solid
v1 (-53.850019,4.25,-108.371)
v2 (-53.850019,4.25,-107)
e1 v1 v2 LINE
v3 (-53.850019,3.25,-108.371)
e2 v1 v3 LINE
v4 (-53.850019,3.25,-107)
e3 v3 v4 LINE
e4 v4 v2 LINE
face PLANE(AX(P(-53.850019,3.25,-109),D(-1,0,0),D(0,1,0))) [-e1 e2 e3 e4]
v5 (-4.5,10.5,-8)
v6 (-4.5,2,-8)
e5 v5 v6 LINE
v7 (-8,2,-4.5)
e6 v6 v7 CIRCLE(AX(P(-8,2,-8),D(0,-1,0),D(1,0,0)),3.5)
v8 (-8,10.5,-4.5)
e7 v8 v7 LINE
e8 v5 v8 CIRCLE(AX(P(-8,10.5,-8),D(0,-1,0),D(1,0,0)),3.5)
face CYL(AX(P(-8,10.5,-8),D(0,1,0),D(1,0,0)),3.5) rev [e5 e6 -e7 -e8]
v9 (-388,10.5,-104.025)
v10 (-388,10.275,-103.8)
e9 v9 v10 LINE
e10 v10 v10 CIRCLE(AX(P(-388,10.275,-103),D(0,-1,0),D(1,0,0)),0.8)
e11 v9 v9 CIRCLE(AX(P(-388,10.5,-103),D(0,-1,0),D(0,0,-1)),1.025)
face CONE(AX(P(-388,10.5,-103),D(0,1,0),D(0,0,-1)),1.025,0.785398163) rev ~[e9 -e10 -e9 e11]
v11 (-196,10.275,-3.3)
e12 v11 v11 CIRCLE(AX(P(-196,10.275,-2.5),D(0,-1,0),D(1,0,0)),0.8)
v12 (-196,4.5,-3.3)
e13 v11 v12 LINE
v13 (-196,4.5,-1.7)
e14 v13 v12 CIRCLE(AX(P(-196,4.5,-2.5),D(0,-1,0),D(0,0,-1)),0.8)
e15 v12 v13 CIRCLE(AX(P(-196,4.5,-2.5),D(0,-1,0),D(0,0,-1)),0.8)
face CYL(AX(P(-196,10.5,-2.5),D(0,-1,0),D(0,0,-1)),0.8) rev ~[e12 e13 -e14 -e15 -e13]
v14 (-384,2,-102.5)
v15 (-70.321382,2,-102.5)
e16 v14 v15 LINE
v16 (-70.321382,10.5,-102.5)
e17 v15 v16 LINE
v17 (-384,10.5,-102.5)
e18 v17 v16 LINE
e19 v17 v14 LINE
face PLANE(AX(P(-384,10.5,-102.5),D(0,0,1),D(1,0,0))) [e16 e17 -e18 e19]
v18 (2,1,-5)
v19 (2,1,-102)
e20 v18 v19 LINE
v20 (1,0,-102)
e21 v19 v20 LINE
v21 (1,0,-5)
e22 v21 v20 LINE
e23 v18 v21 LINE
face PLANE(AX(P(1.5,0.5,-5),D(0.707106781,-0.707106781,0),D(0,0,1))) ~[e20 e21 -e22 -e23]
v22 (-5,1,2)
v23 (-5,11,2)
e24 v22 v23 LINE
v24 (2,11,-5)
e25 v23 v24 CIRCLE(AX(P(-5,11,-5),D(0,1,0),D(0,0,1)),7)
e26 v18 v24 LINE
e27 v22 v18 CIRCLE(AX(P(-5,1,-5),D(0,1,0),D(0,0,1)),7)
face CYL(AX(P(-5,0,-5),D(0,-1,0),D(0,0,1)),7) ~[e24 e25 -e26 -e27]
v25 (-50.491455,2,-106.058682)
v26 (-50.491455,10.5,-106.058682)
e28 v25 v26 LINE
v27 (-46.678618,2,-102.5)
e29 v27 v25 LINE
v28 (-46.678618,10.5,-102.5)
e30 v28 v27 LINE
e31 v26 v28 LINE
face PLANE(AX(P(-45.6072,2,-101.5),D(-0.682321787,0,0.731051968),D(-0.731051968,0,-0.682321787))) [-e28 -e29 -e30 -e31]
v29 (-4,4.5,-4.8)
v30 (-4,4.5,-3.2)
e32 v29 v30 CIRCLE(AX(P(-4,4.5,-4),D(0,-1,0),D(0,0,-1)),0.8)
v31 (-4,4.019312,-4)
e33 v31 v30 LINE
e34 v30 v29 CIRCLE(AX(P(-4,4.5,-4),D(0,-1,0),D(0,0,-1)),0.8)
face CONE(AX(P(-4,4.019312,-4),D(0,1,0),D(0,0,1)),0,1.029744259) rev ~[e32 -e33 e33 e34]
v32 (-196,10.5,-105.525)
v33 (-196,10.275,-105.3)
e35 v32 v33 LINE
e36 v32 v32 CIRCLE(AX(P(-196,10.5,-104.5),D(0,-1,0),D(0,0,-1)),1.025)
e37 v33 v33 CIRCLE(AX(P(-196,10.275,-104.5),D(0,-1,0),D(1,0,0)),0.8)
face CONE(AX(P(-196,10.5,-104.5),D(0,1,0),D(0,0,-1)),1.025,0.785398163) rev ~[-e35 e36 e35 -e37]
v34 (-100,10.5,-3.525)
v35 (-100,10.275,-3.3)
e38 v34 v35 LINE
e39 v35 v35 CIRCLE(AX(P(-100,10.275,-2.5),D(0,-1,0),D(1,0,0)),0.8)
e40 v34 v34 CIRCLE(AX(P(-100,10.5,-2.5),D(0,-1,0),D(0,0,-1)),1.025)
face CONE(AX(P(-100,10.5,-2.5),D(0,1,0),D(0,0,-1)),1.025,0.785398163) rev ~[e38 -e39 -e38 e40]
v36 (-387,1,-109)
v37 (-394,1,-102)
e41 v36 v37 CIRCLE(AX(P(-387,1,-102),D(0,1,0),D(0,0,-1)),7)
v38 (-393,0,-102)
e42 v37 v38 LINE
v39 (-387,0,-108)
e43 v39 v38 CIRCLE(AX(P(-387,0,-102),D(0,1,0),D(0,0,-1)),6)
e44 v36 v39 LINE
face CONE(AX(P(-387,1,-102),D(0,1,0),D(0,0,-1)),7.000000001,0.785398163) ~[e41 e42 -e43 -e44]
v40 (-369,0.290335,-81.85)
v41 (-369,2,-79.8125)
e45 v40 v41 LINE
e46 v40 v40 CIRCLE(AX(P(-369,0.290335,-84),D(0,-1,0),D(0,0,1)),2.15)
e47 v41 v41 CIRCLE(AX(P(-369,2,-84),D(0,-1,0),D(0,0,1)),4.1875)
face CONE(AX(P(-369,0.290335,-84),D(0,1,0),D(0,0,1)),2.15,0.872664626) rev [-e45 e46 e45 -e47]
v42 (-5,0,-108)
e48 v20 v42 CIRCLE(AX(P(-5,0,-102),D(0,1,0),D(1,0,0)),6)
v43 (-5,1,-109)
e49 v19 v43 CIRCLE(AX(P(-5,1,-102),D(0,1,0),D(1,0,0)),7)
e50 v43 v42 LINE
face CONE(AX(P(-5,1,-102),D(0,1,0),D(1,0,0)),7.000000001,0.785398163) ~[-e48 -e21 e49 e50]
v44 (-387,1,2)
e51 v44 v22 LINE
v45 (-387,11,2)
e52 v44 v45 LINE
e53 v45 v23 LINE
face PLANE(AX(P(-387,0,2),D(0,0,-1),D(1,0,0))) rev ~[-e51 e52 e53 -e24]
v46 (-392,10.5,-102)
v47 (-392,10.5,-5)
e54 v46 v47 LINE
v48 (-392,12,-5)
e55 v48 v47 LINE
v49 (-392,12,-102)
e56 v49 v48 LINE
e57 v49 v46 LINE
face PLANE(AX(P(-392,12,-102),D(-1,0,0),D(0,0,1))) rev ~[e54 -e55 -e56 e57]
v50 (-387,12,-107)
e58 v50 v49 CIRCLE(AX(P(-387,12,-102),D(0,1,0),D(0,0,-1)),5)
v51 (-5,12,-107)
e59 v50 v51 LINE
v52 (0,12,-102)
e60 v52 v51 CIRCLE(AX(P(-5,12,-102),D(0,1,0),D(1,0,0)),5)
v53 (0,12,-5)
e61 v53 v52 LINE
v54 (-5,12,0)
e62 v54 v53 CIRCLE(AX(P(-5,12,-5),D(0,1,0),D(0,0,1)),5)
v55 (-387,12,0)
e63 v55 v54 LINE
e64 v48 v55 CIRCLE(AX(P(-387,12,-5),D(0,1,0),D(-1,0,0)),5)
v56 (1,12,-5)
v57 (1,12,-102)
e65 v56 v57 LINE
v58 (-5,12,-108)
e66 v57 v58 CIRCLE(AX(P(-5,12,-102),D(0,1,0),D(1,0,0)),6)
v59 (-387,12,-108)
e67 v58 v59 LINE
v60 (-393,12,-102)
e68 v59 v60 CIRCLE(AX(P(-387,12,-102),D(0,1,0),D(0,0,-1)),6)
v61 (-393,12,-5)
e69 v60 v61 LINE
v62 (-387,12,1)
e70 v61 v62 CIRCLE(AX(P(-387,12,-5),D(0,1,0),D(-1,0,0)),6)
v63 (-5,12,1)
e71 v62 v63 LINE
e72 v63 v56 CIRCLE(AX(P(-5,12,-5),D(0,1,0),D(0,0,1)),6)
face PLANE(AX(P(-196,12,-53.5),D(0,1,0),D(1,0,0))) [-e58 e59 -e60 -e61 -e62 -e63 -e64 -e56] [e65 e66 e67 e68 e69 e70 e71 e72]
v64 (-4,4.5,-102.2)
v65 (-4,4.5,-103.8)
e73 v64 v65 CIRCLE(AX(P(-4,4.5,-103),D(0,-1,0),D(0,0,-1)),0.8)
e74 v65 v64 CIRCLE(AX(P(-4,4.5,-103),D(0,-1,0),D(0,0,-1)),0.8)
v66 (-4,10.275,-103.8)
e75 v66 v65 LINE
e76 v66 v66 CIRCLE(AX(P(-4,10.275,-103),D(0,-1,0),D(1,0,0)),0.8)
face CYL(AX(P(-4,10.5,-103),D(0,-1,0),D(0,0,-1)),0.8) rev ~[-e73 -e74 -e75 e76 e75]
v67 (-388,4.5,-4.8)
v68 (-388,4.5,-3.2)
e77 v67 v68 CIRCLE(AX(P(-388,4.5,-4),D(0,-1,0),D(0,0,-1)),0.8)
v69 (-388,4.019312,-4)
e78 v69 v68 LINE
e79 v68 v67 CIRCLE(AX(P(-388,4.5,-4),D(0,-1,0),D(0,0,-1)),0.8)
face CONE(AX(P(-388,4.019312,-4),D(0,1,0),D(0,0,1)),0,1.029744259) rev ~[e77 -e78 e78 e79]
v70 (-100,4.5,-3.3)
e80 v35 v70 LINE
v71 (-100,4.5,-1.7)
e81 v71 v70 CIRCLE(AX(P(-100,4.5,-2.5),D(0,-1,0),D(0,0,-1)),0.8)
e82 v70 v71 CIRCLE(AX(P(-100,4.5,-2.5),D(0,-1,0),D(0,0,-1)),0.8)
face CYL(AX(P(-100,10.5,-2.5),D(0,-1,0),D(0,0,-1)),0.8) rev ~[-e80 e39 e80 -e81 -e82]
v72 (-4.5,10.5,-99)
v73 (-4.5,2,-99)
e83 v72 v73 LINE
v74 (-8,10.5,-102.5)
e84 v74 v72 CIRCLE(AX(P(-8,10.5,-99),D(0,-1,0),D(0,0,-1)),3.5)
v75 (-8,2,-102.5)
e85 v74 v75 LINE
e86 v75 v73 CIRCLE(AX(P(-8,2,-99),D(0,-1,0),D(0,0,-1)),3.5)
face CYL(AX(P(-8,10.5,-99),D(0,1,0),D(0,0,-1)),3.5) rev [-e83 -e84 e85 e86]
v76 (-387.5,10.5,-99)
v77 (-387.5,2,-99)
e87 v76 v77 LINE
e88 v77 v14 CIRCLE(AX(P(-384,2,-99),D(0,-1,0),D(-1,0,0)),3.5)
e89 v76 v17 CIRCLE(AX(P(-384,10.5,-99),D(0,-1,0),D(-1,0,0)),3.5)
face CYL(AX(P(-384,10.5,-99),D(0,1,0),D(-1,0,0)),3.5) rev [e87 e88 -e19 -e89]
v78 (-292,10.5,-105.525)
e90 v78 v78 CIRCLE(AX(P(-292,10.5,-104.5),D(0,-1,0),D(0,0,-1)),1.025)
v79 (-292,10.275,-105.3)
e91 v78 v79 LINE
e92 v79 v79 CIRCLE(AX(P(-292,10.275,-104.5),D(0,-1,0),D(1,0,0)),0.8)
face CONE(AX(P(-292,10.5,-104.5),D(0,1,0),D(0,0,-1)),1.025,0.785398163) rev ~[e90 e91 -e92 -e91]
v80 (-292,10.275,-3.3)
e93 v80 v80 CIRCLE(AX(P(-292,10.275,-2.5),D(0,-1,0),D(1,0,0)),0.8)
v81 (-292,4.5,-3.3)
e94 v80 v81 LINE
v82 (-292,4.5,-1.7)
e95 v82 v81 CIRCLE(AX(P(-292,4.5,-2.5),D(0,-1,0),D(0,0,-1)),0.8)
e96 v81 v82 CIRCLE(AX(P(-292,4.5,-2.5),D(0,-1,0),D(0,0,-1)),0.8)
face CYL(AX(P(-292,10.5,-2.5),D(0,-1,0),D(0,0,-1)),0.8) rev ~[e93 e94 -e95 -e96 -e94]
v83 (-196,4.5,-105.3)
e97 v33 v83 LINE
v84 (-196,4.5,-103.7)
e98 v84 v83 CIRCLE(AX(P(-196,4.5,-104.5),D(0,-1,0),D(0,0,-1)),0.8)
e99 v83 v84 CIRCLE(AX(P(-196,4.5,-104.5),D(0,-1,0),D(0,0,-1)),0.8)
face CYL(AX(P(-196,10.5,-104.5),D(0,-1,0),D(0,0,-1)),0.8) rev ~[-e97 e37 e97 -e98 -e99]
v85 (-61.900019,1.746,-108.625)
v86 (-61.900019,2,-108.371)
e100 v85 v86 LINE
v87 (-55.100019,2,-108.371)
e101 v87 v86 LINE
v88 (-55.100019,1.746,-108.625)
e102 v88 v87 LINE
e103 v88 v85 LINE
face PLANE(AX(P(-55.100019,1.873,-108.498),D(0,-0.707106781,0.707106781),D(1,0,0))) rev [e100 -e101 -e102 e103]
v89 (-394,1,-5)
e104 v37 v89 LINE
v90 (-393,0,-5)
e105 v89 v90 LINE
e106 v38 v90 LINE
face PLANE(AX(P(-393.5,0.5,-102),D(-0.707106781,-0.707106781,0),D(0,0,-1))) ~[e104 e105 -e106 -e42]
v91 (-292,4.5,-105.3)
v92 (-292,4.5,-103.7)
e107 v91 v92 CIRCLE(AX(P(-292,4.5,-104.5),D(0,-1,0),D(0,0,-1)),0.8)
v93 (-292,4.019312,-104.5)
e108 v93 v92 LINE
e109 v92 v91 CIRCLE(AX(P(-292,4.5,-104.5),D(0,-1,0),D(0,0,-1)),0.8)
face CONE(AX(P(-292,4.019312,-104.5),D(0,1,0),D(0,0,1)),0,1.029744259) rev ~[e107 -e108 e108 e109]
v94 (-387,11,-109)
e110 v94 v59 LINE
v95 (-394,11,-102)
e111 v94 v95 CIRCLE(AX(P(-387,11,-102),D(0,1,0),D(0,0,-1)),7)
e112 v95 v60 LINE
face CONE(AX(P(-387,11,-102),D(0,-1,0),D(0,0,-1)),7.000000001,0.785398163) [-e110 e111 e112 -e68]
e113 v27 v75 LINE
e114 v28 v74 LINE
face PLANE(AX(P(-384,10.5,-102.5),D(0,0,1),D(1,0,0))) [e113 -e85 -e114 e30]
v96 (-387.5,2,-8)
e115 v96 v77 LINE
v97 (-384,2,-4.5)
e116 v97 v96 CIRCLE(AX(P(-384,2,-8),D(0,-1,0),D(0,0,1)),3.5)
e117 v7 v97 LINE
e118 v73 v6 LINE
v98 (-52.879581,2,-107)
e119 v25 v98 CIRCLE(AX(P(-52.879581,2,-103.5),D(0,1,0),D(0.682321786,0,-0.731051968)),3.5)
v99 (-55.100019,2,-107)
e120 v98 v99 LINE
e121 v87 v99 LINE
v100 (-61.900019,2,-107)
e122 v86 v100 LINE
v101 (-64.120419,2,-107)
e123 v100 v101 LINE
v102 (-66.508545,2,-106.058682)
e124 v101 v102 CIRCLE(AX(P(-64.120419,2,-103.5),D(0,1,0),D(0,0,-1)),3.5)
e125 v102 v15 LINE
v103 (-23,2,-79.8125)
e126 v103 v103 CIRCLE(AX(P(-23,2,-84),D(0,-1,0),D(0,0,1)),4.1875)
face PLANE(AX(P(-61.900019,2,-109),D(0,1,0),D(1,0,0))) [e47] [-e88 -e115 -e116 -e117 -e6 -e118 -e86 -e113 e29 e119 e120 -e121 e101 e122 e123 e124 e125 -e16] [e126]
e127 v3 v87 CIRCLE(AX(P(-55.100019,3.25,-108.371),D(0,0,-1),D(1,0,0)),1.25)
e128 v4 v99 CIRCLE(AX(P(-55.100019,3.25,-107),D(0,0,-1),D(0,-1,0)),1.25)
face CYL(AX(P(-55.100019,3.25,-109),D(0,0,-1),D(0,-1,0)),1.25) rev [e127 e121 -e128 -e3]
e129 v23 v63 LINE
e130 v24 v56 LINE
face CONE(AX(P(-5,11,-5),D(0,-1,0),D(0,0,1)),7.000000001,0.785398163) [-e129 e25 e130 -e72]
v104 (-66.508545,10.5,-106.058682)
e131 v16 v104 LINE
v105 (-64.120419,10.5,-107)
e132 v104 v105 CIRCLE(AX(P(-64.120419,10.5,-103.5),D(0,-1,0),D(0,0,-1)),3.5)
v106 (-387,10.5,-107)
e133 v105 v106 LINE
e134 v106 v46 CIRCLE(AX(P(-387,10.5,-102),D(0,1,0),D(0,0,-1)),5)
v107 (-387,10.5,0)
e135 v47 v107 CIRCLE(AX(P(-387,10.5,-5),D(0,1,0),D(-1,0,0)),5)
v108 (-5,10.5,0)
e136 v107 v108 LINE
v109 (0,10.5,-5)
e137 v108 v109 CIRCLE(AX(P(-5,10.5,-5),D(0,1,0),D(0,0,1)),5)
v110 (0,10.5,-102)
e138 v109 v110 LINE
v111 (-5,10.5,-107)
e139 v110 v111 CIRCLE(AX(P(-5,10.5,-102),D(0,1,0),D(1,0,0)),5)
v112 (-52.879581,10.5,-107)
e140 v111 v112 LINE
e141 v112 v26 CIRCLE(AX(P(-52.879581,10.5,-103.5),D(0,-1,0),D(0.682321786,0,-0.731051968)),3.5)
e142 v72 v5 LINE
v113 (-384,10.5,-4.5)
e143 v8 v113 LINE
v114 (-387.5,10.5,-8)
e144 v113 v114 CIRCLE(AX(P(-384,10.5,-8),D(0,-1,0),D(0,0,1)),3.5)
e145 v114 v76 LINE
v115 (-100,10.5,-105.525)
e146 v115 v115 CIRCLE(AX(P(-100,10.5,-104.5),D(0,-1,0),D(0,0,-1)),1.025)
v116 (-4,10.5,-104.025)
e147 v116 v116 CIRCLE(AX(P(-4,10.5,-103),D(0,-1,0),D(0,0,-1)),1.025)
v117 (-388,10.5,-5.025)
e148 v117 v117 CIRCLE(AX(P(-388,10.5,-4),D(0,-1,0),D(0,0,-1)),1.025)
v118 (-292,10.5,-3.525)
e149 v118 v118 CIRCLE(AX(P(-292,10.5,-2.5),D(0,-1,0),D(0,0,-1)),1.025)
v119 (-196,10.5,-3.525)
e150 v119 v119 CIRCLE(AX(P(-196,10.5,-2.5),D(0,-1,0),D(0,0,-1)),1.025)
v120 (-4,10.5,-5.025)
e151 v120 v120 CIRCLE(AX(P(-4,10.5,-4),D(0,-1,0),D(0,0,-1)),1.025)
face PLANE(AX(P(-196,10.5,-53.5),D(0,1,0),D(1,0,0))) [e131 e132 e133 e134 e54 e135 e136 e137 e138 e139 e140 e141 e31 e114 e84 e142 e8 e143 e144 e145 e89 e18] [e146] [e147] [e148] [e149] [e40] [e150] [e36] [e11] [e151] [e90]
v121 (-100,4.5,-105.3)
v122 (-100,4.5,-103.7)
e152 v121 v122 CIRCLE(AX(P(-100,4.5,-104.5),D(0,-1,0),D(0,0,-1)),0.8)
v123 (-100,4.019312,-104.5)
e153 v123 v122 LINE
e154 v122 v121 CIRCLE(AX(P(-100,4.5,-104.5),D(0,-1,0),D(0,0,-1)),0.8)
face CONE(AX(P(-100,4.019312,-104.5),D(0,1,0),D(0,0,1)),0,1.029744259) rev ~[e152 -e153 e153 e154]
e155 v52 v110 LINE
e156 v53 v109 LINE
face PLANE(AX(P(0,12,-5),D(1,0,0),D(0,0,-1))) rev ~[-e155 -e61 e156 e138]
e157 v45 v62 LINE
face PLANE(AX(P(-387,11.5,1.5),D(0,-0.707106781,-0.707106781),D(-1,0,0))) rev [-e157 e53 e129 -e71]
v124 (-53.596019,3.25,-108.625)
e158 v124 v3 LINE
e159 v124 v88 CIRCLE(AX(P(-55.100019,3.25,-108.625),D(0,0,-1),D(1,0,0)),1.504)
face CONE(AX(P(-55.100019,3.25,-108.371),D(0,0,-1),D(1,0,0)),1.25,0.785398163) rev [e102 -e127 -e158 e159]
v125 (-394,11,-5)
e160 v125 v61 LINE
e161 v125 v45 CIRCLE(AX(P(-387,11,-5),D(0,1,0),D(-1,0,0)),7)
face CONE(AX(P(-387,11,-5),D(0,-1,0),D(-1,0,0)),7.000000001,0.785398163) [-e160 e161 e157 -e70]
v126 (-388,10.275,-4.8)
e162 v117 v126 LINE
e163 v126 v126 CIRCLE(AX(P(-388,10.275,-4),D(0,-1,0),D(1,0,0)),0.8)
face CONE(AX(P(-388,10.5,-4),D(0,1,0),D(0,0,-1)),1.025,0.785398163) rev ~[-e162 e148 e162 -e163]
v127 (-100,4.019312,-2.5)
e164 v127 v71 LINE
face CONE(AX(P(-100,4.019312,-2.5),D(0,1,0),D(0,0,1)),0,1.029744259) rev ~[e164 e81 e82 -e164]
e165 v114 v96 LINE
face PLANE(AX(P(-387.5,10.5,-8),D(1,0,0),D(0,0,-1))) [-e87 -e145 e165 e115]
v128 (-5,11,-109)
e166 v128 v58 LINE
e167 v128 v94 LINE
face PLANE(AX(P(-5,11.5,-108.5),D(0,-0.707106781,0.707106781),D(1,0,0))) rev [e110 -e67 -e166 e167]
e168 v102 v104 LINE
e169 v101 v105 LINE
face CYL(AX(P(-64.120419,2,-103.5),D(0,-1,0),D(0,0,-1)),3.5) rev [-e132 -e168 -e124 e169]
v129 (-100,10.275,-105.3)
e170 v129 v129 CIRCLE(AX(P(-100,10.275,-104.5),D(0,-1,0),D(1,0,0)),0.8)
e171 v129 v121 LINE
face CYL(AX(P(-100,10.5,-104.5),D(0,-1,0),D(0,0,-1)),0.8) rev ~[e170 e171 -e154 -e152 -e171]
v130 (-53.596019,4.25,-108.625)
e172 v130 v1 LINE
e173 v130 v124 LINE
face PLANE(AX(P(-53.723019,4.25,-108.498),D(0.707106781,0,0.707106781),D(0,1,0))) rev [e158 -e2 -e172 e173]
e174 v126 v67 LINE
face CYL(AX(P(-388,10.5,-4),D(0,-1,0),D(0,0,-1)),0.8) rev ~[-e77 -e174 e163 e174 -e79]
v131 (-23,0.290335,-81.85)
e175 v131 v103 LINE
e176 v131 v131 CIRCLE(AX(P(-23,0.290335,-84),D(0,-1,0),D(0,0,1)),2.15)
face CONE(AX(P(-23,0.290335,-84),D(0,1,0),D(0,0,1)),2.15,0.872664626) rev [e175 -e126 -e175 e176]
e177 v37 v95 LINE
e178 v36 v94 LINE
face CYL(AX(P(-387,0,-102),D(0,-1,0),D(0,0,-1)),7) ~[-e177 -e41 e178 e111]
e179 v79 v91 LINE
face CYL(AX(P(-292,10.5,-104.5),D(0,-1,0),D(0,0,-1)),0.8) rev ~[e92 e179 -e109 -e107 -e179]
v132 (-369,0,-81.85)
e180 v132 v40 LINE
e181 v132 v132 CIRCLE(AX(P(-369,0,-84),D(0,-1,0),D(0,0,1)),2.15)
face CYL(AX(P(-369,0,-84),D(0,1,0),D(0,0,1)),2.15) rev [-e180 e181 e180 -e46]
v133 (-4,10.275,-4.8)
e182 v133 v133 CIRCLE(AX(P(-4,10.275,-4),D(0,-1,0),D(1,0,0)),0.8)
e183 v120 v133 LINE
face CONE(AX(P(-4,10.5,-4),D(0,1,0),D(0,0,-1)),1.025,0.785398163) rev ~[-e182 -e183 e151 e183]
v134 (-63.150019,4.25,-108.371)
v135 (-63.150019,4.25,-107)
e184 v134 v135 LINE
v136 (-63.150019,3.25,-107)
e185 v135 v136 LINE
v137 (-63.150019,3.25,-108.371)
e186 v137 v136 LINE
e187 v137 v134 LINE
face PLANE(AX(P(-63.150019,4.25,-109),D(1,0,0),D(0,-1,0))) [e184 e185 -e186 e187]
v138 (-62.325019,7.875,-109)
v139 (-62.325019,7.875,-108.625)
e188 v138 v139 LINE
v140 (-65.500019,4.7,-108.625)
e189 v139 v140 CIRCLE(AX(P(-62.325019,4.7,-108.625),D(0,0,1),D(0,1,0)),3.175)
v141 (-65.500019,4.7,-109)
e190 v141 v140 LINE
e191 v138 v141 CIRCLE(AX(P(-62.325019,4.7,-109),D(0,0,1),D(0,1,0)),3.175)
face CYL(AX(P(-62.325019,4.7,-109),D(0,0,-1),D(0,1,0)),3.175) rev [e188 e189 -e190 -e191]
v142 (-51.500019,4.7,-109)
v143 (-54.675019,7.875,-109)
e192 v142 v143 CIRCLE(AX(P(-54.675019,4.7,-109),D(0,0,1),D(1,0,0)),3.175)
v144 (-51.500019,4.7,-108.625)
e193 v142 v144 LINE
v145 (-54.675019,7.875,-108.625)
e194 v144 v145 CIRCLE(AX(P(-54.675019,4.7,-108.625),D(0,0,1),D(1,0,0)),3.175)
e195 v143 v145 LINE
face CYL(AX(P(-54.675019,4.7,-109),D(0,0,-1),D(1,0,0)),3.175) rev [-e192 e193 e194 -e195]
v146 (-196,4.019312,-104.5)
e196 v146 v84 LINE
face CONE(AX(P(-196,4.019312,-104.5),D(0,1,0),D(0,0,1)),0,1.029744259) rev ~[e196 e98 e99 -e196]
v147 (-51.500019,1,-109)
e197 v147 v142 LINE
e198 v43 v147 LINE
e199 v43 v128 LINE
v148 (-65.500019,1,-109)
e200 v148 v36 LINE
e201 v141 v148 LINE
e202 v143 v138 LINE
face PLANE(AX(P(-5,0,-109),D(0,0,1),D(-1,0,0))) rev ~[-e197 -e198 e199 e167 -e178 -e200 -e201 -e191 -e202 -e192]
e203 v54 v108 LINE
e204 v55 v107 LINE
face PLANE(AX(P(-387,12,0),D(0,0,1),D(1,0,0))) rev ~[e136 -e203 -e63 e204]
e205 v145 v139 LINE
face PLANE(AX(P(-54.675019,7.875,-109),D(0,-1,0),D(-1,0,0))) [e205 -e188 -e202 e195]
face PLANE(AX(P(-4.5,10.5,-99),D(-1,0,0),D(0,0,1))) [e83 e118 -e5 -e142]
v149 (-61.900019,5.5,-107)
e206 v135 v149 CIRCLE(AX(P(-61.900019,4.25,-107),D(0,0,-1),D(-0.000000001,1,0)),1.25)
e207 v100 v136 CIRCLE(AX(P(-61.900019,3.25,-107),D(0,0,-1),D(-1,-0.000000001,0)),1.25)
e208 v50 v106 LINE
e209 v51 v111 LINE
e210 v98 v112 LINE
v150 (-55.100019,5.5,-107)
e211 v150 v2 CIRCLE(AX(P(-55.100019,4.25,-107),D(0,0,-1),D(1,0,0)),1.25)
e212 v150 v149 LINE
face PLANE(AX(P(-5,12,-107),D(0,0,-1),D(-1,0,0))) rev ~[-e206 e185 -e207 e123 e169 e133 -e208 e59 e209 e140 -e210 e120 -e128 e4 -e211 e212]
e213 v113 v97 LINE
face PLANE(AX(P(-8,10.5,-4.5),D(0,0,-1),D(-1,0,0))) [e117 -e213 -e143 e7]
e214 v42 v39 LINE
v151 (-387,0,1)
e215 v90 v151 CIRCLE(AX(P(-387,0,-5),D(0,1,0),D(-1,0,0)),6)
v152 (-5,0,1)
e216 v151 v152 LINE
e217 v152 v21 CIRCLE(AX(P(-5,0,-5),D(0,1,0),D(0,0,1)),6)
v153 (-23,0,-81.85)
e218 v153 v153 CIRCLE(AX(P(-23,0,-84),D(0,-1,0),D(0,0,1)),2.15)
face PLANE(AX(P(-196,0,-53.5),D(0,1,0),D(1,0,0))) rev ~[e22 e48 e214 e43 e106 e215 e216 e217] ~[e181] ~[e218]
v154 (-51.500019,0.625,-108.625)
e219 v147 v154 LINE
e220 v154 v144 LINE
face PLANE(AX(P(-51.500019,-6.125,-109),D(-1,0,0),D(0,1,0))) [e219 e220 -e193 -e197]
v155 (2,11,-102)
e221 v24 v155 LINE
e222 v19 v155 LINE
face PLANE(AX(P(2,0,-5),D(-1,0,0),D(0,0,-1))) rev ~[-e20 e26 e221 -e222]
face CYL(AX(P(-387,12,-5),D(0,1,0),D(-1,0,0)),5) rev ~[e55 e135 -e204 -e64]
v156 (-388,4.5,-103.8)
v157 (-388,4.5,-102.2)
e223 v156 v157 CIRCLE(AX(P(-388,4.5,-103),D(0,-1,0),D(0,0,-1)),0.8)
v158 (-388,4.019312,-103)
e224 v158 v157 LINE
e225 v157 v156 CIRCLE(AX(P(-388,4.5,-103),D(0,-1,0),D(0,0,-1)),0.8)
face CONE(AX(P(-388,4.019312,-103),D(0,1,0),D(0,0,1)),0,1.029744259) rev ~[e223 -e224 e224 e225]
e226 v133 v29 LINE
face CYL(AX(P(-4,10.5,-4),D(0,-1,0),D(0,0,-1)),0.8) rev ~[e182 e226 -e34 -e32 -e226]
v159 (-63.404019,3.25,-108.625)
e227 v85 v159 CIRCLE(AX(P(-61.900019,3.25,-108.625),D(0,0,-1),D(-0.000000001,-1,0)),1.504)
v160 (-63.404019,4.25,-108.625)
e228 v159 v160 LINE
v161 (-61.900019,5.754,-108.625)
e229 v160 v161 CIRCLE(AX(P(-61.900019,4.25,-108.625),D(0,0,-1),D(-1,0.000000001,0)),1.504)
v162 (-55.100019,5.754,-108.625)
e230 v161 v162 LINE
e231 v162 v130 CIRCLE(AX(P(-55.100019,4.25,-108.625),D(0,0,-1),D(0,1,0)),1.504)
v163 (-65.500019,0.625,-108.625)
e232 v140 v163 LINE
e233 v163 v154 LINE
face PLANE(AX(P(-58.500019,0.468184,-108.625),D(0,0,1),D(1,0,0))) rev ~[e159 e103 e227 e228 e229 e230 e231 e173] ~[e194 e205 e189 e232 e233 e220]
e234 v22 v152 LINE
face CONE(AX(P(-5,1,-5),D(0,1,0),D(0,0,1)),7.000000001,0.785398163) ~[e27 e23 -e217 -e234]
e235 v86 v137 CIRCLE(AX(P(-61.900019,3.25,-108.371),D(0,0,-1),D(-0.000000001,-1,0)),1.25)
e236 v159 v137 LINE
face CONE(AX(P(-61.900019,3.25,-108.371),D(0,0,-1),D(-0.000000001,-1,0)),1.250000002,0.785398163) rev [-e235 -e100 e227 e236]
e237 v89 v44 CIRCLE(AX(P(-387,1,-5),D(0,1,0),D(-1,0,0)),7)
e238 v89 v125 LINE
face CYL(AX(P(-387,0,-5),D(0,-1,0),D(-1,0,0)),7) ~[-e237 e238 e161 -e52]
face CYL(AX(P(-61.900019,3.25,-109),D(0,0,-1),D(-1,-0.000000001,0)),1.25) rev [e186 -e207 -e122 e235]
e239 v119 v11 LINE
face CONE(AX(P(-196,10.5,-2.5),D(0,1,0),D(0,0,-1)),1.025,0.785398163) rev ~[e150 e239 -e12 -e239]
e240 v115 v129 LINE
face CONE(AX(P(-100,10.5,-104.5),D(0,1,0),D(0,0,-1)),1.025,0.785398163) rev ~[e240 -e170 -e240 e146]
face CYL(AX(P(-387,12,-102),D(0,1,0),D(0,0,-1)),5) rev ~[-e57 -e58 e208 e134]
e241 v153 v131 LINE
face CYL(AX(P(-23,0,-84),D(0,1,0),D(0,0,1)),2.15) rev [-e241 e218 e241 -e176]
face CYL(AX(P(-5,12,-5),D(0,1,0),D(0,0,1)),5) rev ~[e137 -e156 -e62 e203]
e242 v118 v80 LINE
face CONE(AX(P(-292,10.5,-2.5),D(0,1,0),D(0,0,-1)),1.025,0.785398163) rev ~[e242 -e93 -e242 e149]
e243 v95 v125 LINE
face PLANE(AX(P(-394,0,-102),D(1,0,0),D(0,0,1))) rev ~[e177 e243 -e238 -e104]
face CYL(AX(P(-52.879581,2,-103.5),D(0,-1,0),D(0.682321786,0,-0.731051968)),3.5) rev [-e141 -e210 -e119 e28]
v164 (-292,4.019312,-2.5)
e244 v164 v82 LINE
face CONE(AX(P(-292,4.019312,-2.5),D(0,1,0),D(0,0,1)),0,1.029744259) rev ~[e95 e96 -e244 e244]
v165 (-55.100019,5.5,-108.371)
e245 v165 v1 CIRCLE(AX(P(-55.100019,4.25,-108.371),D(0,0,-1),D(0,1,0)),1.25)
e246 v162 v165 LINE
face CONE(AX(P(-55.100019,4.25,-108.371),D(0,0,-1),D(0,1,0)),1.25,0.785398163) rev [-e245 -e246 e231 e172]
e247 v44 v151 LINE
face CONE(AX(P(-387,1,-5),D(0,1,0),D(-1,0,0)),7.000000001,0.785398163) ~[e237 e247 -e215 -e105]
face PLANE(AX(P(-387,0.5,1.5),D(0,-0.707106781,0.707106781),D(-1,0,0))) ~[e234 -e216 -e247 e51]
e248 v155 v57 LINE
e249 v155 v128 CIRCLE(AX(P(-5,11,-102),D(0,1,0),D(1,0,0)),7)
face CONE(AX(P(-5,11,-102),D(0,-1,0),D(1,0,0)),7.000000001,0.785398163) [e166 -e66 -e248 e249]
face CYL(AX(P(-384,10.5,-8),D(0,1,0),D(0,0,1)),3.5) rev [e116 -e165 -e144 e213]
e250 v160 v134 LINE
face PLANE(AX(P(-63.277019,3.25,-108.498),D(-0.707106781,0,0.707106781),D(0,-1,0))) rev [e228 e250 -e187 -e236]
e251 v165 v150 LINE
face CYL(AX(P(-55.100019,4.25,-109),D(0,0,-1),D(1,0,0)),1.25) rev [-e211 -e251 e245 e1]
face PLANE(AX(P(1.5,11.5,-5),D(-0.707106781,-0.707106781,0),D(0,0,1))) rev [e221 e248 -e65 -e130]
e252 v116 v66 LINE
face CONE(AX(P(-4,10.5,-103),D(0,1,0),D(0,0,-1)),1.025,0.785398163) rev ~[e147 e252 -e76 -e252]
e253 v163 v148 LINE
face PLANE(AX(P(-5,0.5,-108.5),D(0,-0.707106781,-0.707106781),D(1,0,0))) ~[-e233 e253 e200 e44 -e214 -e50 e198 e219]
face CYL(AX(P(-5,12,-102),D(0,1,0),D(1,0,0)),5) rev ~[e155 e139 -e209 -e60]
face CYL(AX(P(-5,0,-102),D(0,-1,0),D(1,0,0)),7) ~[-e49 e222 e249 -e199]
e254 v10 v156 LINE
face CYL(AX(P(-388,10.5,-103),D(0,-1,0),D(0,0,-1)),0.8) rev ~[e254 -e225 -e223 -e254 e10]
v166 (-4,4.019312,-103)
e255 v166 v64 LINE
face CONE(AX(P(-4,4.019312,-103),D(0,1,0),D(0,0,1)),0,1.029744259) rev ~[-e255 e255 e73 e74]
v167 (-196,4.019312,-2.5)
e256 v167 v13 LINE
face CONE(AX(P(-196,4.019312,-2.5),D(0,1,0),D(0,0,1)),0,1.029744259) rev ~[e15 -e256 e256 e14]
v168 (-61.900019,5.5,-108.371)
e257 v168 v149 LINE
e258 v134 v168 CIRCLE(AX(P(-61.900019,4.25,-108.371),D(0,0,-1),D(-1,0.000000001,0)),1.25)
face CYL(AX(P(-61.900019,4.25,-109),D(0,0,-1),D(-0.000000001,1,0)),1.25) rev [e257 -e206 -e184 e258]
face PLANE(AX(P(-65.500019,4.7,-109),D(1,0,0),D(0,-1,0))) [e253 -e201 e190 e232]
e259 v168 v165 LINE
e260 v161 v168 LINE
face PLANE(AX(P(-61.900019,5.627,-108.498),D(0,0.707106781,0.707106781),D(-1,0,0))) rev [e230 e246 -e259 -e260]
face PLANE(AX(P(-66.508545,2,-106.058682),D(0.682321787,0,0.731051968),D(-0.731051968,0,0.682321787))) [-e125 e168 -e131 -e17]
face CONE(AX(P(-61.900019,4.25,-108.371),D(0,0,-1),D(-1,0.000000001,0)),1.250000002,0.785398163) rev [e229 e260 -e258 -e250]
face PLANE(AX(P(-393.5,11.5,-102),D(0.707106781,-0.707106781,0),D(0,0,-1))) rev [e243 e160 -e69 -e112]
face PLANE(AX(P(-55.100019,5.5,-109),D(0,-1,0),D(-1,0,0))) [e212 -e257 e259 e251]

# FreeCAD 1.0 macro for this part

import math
import FreeCAD as App
import Part
import Sketcher
Q = App.Units.Quantity


def edges_at(feature, points):
    """Names of the edges that pass closest to the given points."""
    edges = feature.Shape.Edges
    near = lambda p: min(range(len(edges)), key=lambda i: edges[i].distToShape(Part.Vertex(*p))[0])
    return sorted({f"Edge{near(p) + 1}" for p in points})

doc = App.newDocument("Part")
body = doc.addObject("PartDesign::Body", "Body")

# Sketch on XZ plane
sketch1 = body.newObject("Sketcher::SketchObject", "Sketch")
sketch1.AttachmentSupport = (doc.getObject("XZ_Plane"), [""])
sketch1.MapMode = "FlatFace"
sketch1.addGeometry(Part.LineSegment(App.Vector(-5, -109, 0), App.Vector(-387, -109, 0)), False)
sketch1.addGeometry(Part.ArcOfCircle(Part.Circle(App.Vector(-387, -102, 0), App.Vector(0, 0, 1), 7), math.radians(-180), math.radians(-90)), False)
sketch1.addGeometry(Part.LineSegment(App.Vector(-394, -102, 0), App.Vector(-394, -5, 0)), False)
sketch1.addGeometry(Part.ArcOfCircle(Part.Circle(App.Vector(-387, -5, 0), App.Vector(0, 0, 1), 7), math.radians(90), math.radians(180)), False)
sketch1.addGeometry(Part.LineSegment(App.Vector(-387, 2, 0), App.Vector(-5, 2, 0)), False)
sketch1.addGeometry(Part.ArcOfCircle(Part.Circle(App.Vector(-5, -5, 0), App.Vector(0, 0, 1), 7), math.radians(0), math.radians(90)), False)
sketch1.addGeometry(Part.LineSegment(App.Vector(2, -5, 0), App.Vector(2, -102, 0)), False)
sketch1.addGeometry(Part.ArcOfCircle(Part.Circle(App.Vector(-5, -102, 0), App.Vector(0, 0, 1), 7), math.radians(-90), math.radians(0)), False)
sketch1.addConstraint(Sketcher.Constraint("Tangent", 0, 2, 1, 2))
sketch1.addConstraint(Sketcher.Constraint("Tangent", 1, 1, 2, 1))
sketch1.addConstraint(Sketcher.Constraint("Tangent", 2, 2, 3, 2))
sketch1.addConstraint(Sketcher.Constraint("Tangent", 3, 1, 4, 1))
sketch1.addConstraint(Sketcher.Constraint("Tangent", 4, 2, 5, 2))
sketch1.addConstraint(Sketcher.Constraint("Tangent", 5, 1, 6, 1))
sketch1.addConstraint(Sketcher.Constraint("Tangent", 6, 2, 7, 2))
sketch1.addConstraint(Sketcher.Constraint("Tangent", 7, 1, 0, 1))
sketch1.addConstraint(Sketcher.Constraint("Horizontal", 0))
sketch1.addConstraint(Sketcher.Constraint("Vertical", 2))
sketch1.addConstraint(Sketcher.Constraint("Horizontal", 4))
sketch1.addConstraint(Sketcher.Constraint("Vertical", 6))
sketch1.addConstraint(Sketcher.Constraint("Equal", 1, 3))
sketch1.addConstraint(Sketcher.Constraint("Equal", 3, 5))
sketch1.addConstraint(Sketcher.Constraint("Equal", 5, 7))
sketch1.addConstraint(Sketcher.Constraint("Radius", 1, 7.0))
sketch1.addConstraint(Sketcher.Constraint("DistanceX", 0, 2, 0, 1, 382.0))
sketch1.addConstraint(Sketcher.Constraint("DistanceY", 2, 1, 2, 2, 97.0))
sketch1.addConstraint(Sketcher.Constraint("DistanceX", 1, 3, -1, 1, 387.0))
sketch1.addConstraint(Sketcher.Constraint("DistanceY", 1, 3, -1, 1, 102.0))
pad1 = body.newObject("PartDesign::Pad", "Pad")
pad1.Profile = sketch1
pad1.Length = 12
pad1.Reversed = True

# Sketch on XZ plane
sketch2 = body.newObject("Sketcher::SketchObject", "Sketch001")
sketch2.AttachmentSupport = (doc.getObject("XZ_Plane"), [""])
sketch2.MapMode = "FlatFace"
sketch2.AttachmentOffset = App.Placement(App.Vector(0, 0, -12), App.Rotation())
sketch2.addGeometry(Part.LineSegment(App.Vector(0, -5, 0), App.Vector(0, -102, 0)), False)
sketch2.addGeometry(Part.ArcOfCircle(Part.Circle(App.Vector(-5, -102, 0), App.Vector(0, 0, 1), 5), math.radians(-90), math.radians(0)), False)
sketch2.addGeometry(Part.LineSegment(App.Vector(-5, -107, 0), App.Vector(-387, -107, 0)), False)
sketch2.addGeometry(Part.ArcOfCircle(Part.Circle(App.Vector(-387, -102, 0), App.Vector(0, 0, 1), 5), math.radians(180), math.radians(270)), False)
sketch2.addGeometry(Part.LineSegment(App.Vector(-392, -102, 0), App.Vector(-392, -5, 0)), False)
sketch2.addGeometry(Part.ArcOfCircle(Part.Circle(App.Vector(-387, -5, 0), App.Vector(0, 0, 1), 5), math.radians(90), math.radians(180)), False)
sketch2.addGeometry(Part.LineSegment(App.Vector(-387, 0, 0), App.Vector(-5, 0, 0)), False)
sketch2.addGeometry(Part.ArcOfCircle(Part.Circle(App.Vector(-5, -5, 0), App.Vector(0, 0, 1), 5), math.radians(0), math.radians(90)), False)
sketch2.addConstraint(Sketcher.Constraint("Tangent", 0, 2, 1, 2))
sketch2.addConstraint(Sketcher.Constraint("Tangent", 1, 1, 2, 1))
sketch2.addConstraint(Sketcher.Constraint("Tangent", 2, 2, 3, 2))
sketch2.addConstraint(Sketcher.Constraint("Tangent", 3, 1, 4, 1))
sketch2.addConstraint(Sketcher.Constraint("Tangent", 4, 2, 5, 2))
sketch2.addConstraint(Sketcher.Constraint("Tangent", 5, 1, 6, 1))
sketch2.addConstraint(Sketcher.Constraint("Tangent", 6, 2, 7, 2))
sketch2.addConstraint(Sketcher.Constraint("Tangent", 7, 1, 0, 1))
sketch2.addConstraint(Sketcher.Constraint("Vertical", 0))
sketch2.addConstraint(Sketcher.Constraint("Horizontal", 2))
sketch2.addConstraint(Sketcher.Constraint("Vertical", 4))
sketch2.addConstraint(Sketcher.Constraint("Horizontal", 6))
sketch2.addConstraint(Sketcher.Constraint("Equal", 1, 3))
sketch2.addConstraint(Sketcher.Constraint("Equal", 3, 5))
sketch2.addConstraint(Sketcher.Constraint("Equal", 5, 7))
sketch2.addConstraint(Sketcher.Constraint("PointOnObject", 0, 2, -2))
sketch2.addConstraint(Sketcher.Constraint("PointOnObject", 5, 1, -1))
sketch2.addConstraint(Sketcher.Constraint("Radius", 1, 5.0))
sketch2.addConstraint(Sketcher.Constraint("DistanceX", 2, 2, 2, 1, 382.0))
sketch2.addConstraint(Sketcher.Constraint("DistanceY", 0, 2, 0, 1, 97.0))
pocket1 = body.newObject("PartDesign::Pocket", "Pocket")
pocket1.Profile = sketch2
pocket1.Length = 1.5
pocket1.Reversed = True

# Sketch on XZ plane
sketch3 = body.newObject("Sketcher::SketchObject", "Sketch002")
sketch3.AttachmentSupport = (doc.getObject("XZ_Plane"), [""])
sketch3.MapMode = "FlatFace"
sketch3.AttachmentOffset = App.Placement(App.Vector(0, 0, -10.5), App.Rotation())
sketch3.addGeometry(Part.LineSegment(App.Vector(-8, -102.5, 0), App.Vector(-384, -102.5, 0)), False)
sketch3.addGeometry(Part.ArcOfCircle(Part.Circle(App.Vector(-384, -99, 0), App.Vector(0, 0, 1), 3.5), math.radians(-180), math.radians(-90)), False)
sketch3.addGeometry(Part.LineSegment(App.Vector(-387.5, -99, 0), App.Vector(-387.5, -8, 0)), False)
sketch3.addGeometry(Part.ArcOfCircle(Part.Circle(App.Vector(-384, -8, 0), App.Vector(0, 0, 1), 3.5), math.radians(90), math.radians(180)), False)
sketch3.addGeometry(Part.LineSegment(App.Vector(-384, -4.5, 0), App.Vector(-8, -4.5, 0)), False)
sketch3.addGeometry(Part.ArcOfCircle(Part.Circle(App.Vector(-8, -8, 0), App.Vector(0, 0, 1), 3.5), math.radians(0), math.radians(90)), False)
sketch3.addGeometry(Part.LineSegment(App.Vector(-4.5, -8, 0), App.Vector(-4.5, -99, 0)), False)
sketch3.addGeometry(Part.ArcOfCircle(Part.Circle(App.Vector(-8, -99, 0), App.Vector(0, 0, 1), 3.5), math.radians(-90), math.radians(0)), False)
sketch3.addConstraint(Sketcher.Constraint("Tangent", 0, 2, 1, 2))
sketch3.addConstraint(Sketcher.Constraint("Tangent", 1, 1, 2, 1))
sketch3.addConstraint(Sketcher.Constraint("Tangent", 2, 2, 3, 2))
sketch3.addConstraint(Sketcher.Constraint("Tangent", 3, 1, 4, 1))
sketch3.addConstraint(Sketcher.Constraint("Tangent", 4, 2, 5, 2))
sketch3.addConstraint(Sketcher.Constraint("Tangent", 5, 1, 6, 1))
sketch3.addConstraint(Sketcher.Constraint("Tangent", 6, 2, 7, 2))
sketch3.addConstraint(Sketcher.Constraint("Tangent", 7, 1, 0, 1))
sketch3.addConstraint(Sketcher.Constraint("Horizontal", 0))
sketch3.addConstraint(Sketcher.Constraint("Vertical", 2))
sketch3.addConstraint(Sketcher.Constraint("Horizontal", 4))
sketch3.addConstraint(Sketcher.Constraint("Vertical", 6))
sketch3.addConstraint(Sketcher.Constraint("Equal", 1, 3))
sketch3.addConstraint(Sketcher.Constraint("Equal", 3, 5))
sketch3.addConstraint(Sketcher.Constraint("Equal", 5, 7))
sketch3.addConstraint(Sketcher.Constraint("Radius", 1, 3.5))
sketch3.addConstraint(Sketcher.Constraint("DistanceX", 0, 2, 0, 1, 376.0))
sketch3.addConstraint(Sketcher.Constraint("DistanceY", 2, 1, 2, 2, 91.0))
sketch3.addConstraint(Sketcher.Constraint("DistanceX", 1, 3, -1, 1, 384.0))
sketch3.addConstraint(Sketcher.Constraint("DistanceY", 1, 3, -1, 1, 99.0))
pocket2 = body.newObject("PartDesign::Pocket", "Pocket001")
pocket2.Profile = sketch3
pocket2.Length = 8.5
pocket2.Reversed = True

# Sketch on XZ plane
sketch4 = body.newObject("Sketcher::SketchObject", "Sketch003")
sketch4.AttachmentSupport = (doc.getObject("XZ_Plane"), [""])
sketch4.MapMode = "FlatFace"
sketch4.AttachmentOffset = App.Placement(App.Vector(0, 0, -10.5), App.Rotation())
sketch4.addGeometry(Part.Circle(App.Vector(-388, -103, 0), App.Vector(0, 0, 1), 0.8), False)
sketch4.addGeometry(Part.Circle(App.Vector(-292, -104.5, 0), App.Vector(0, 0, 1), 0.8), False)
sketch4.addGeometry(Part.Circle(App.Vector(-196, -104.5, 0), App.Vector(0, 0, 1), 0.8), False)
sketch4.addGeometry(Part.Circle(App.Vector(-100, -104.5, 0), App.Vector(0, 0, 1), 0.8), False)
sketch4.addGeometry(Part.Circle(App.Vector(-4, -103, 0), App.Vector(0, 0, 1), 0.8), False)
sketch4.addGeometry(Part.Circle(App.Vector(-4, -4, 0), App.Vector(0, 0, 1), 0.8), False)
sketch4.addGeometry(Part.Circle(App.Vector(-100, -2.5, 0), App.Vector(0, 0, 1), 0.8), False)
sketch4.addGeometry(Part.Circle(App.Vector(-196, -2.5, 0), App.Vector(0, 0, 1), 0.8), False)
sketch4.addGeometry(Part.Circle(App.Vector(-292, -2.5, 0), App.Vector(0, 0, 1), 0.8), False)
sketch4.addGeometry(Part.Circle(App.Vector(-388, -4, 0), App.Vector(0, 0, 1), 0.8), False)
sketch4.addConstraint(Sketcher.Constraint("Equal", 0, 1))
sketch4.addConstraint(Sketcher.Constraint("Equal", 1, 2))
sketch4.addConstraint(Sketcher.Constraint("Equal", 2, 3))
sketch4.addConstraint(Sketcher.Constraint("Equal", 3, 4))
sketch4.addConstraint(Sketcher.Constraint("Equal", 4, 5))
sketch4.addConstraint(Sketcher.Constraint("Equal", 5, 6))
sketch4.addConstraint(Sketcher.Constraint("Equal", 6, 7))
sketch4.addConstraint(Sketcher.Constraint("Equal", 7, 8))
sketch4.addConstraint(Sketcher.Constraint("Equal", 8, 9))
sketch4.addConstraint(Sketcher.Constraint("Horizontal", 1, 3, 2, 3))
sketch4.addConstraint(Sketcher.Constraint("Horizontal", 2, 3, 3, 3))
sketch4.addConstraint(Sketcher.Constraint("Horizontal", 0, 3, 4, 3))
sketch4.addConstraint(Sketcher.Constraint("Horizontal", 6, 3, 7, 3))
sketch4.addConstraint(Sketcher.Constraint("Horizontal", 7, 3, 8, 3))
sketch4.addConstraint(Sketcher.Constraint("Horizontal", 5, 3, 9, 3))
sketch4.addConstraint(Sketcher.Constraint("Vertical", 4, 3, 5, 3))
sketch4.addConstraint(Sketcher.Constraint("Vertical", 3, 3, 6, 3))
sketch4.addConstraint(Sketcher.Constraint("Vertical", 2, 3, 7, 3))
sketch4.addConstraint(Sketcher.Constraint("Vertical", 1, 3, 8, 3))
sketch4.addConstraint(Sketcher.Constraint("Vertical", 0, 3, 9, 3))
sketch4.addConstraint(Sketcher.Constraint("Diameter", 0, 1.6))
sketch4.addConstraint(Sketcher.Constraint("DistanceX", 0, 3, -1, 1, 388.0))
sketch4.addConstraint(Sketcher.Constraint("DistanceY", 0, 3, -1, 1, 103.0))
sketch4.addConstraint(Sketcher.Constraint("DistanceX", 1, 3, -1, 1, 292.0))
sketch4.addConstraint(Sketcher.Constraint("DistanceX", 2, 3, -1, 1, 196.0))
sketch4.addConstraint(Sketcher.Constraint("DistanceX", 3, 3, -1, 1, 100.0))
sketch4.addConstraint(Sketcher.Constraint("DistanceX", 4, 3, -1, 1, 4.0))
sketch4.addConstraint(Sketcher.Constraint("DistanceY", 5, 3, -1, 1, 4.0))
sketch4.addConstraint(Sketcher.Constraint("DistanceY", 3, 3, 6, 3, 102.0))
sketch4.addConstraint(Sketcher.Constraint("DistanceY", 1, 3, -1, 1, 104.5))
doc.recompute()
hole = body.newObject("PartDesign::Hole", "Hole")
hole.Profile = sketch4
hole.ThreadType = "None"
hole.Diameter = 1.6
hole.DepthType = "Dimension"
hole.Depth = 6
hole.DrillPoint = "Angled"
hole.DrillPointAngle = 118
hole.HoleCutType = "Countersink"
hole.HoleCutDiameter = 2.05
hole.HoleCutCountersinkAngle = 90
hole.Reversed = True

# Sketch on YZ plane
sketch5 = body.newObject("Sketcher::SketchObject", "Sketch004")
sketch5.AttachmentSupport = (doc.getObject("YZ_Plane"), [""])
sketch5.MapMode = "FlatFace"
sketch5.AttachmentOffset = App.Placement(App.Vector(0, 0, -369), App.Rotation())
sketch5.addGeometry(Part.LineSegment(App.Vector(0, -84, 0), App.Vector(2, -84, 0)), False)
sketch5.addGeometry(Part.LineSegment(App.Vector(2, -84, 0), App.Vector(2, -79.81, 0)), False)
sketch5.addGeometry(Part.LineSegment(App.Vector(2, -79.81, 0), App.Vector(0.29, -81.85, 0)), False)
sketch5.addGeometry(Part.LineSegment(App.Vector(0.29, -81.85, 0), App.Vector(0, -81.85, 0)), False)
sketch5.addGeometry(Part.LineSegment(App.Vector(0, -81.85, 0), App.Vector(0, -84, 0)), False)
sketch5.addGeometry(Part.LineSegment(App.Vector(2, -84, 0), App.Vector(0, -84, 0)), True)  # axis
sketch5.addConstraint(Sketcher.Constraint("Coincident", 0, 2, 1, 1))
sketch5.addConstraint(Sketcher.Constraint("Coincident", 1, 2, 2, 1))
sketch5.addConstraint(Sketcher.Constraint("Coincident", 2, 2, 3, 1))
sketch5.addConstraint(Sketcher.Constraint("Coincident", 3, 2, 4, 1))
sketch5.addConstraint(Sketcher.Constraint("Coincident", 4, 2, 0, 1))
sketch5.addConstraint(Sketcher.Constraint("Horizontal", 0))
sketch5.addConstraint(Sketcher.Constraint("Vertical", 1))
sketch5.addConstraint(Sketcher.Constraint("Horizontal", 3))
sketch5.addConstraint(Sketcher.Constraint("Vertical", 4))
sketch5.addConstraint(Sketcher.Constraint("Horizontal", 5))
sketch5.addConstraint(Sketcher.Constraint("Coincident", 5, 1, 0, 2))
sketch5.addConstraint(Sketcher.Constraint("PointOnObject", 3, 2, -2))
sketch5.addConstraint(Sketcher.Constraint("PointOnObject", 5, 2, -2))
sketch5.addConstraint(Sketcher.Constraint("DistanceX", 0, 1, 0, 2, 2.0))
sketch5.addConstraint(Sketcher.Constraint("Angle", 2, Q("-130 deg")))
sketch5.addConstraint(Sketcher.Constraint("DistanceY", 0, 2, -1, 1, 84.0))
sketch5.addConstraint(Sketcher.Constraint("DistanceY", 4, 2, 4, 1, 2.15))
sketch5.addConstraint(Sketcher.Constraint("DistanceY", 1, 1, 1, 2, 4.1875))
groove = body.newObject("PartDesign::Groove", "Groove")
groove.Profile = sketch5
groove.ReferenceAxis = (sketch5, ["Axis0"])
groove.Angle = 360
doc.recompute()

linearpattern = body.newObject("PartDesign::LinearPattern", "LinearPattern")
linearpattern.Originals = [groove]
linearpattern.Direction = (doc.getObject("X_Axis"), [""])
linearpattern.Mode = "offset"
linearpattern.Offset = 346
linearpattern.Occurrences = 2
body.Tip = linearpattern
doc.recompute()

chamfer = body.newObject("PartDesign::Chamfer", "Chamfer")
chamfer.Base = (linearpattern, edges_at(linearpattern, [
    (-391.95, 12, -106.95),
    (-196, 0, -109),
    (-0.05, 0, -106.95),
    (-394, 12, -53.5),
    (-391.95, 12, -0.05),
    (-196, 12, 2),
    (-0.05, 12, -0.05),
    (2, 12, -53.5),
    (-0.05, 12, -106.95),
    (-196, 12, -109),
    (2, 0, -53.5),
    (-0.05, 0, -0.05),
    (-196, 0, 2),
    (-391.95, 0, -0.05),
    (-394, 0, -53.5),
    (-391.95, 0, -106.95),
]))
chamfer.Size = 1

# Sketch on XZ plane
sketch6 = body.newObject("Sketcher::SketchObject", "Sketch005")
sketch6.AttachmentSupport = (doc.getObject("XZ_Plane"), [""])
sketch6.MapMode = "FlatFace"
sketch6.AttachmentOffset = App.Placement(App.Vector(0, 0, -2), App.Rotation())
sketch6.addGeometry(Part.LineSegment(App.Vector(-45.6, -101.5, 0), App.Vector(-50.5, -106.1, 0)), False)
sketch6.addGeometry(Part.ArcOfCircle(Part.Circle(App.Vector(-52.9, -103.5, 0), App.Vector(0, 0, 1), 3.5), math.radians(-90), math.radians(-47)), False)
sketch6.addGeometry(Part.LineSegment(App.Vector(-52.9, -107, 0), App.Vector(-64.1, -107, 0)), False)
sketch6.addGeometry(Part.ArcOfCircle(Part.Circle(App.Vector(-64.1, -103.5, 0), App.Vector(0, 0, 1), 3.5), math.radians(-133), math.radians(-90)), False)
sketch6.addGeometry(Part.LineSegment(App.Vector(-66.5, -106.1, 0), App.Vector(-71.4, -101.5, 0)), False)
sketch6.addGeometry(Part.LineSegment(App.Vector(-71.4, -101.5, 0), App.Vector(-45.6, -101.5, 0)), False)
sketch6.addConstraint(Sketcher.Constraint("Tangent", 0, 2, 1, 2))
sketch6.addConstraint(Sketcher.Constraint("Tangent", 1, 1, 2, 1))
sketch6.addConstraint(Sketcher.Constraint("Tangent", 2, 2, 3, 2))
sketch6.addConstraint(Sketcher.Constraint("Tangent", 3, 1, 4, 1))
sketch6.addConstraint(Sketcher.Constraint("Coincident", 4, 2, 5, 1))
sketch6.addConstraint(Sketcher.Constraint("Coincident", 5, 2, 0, 1))
sketch6.addConstraint(Sketcher.Constraint("Horizontal", 2))
sketch6.addConstraint(Sketcher.Constraint("Horizontal", 5))
sketch6.addConstraint(Sketcher.Constraint("Equal", 1, 3))
sketch6.addConstraint(Sketcher.Constraint("Horizontal", 0, 2, 3, 1))
sketch6.addConstraint(Sketcher.Constraint("Radius", 1, 3.5))
sketch6.addConstraint(Sketcher.Constraint("DistanceY", 1, 1, -1, 1, 107.0))
sketch6.addConstraint(Sketcher.Constraint("DistanceY", 3, 3, 4, 2, 2.0))
sketch6.addConstraint(Sketcher.Constraint("DistanceX", 5, 1, 5, 2, 25.7856))
sketch6.addConstraint(Sketcher.Constraint("DistanceX", 2, 2, 2, 1, 11.240838))
sketch6.addConstraint(Sketcher.Constraint("DistanceX", 4, 2, -1, 1, 71.3928))
pocket3 = body.newObject("PartDesign::Pocket", "Pocket002")
pocket3.Profile = sketch6
pocket3.Length = 10

# Sketch on XY plane
sketch7 = body.newObject("Sketcher::SketchObject", "Sketch006")
sketch7.AttachmentSupport = (doc.getObject("XY_Plane"), [""])
sketch7.MapMode = "FlatFace"
sketch7.AttachmentOffset = App.Placement(App.Vector(0, 0, -109), App.Rotation())
sketch7.addGeometry(Part.LineSegment(App.Vector(-61.9, 5.5, 0), App.Vector(-55.1, 5.5, 0)), False)
sketch7.addGeometry(Part.ArcOfCircle(Part.Circle(App.Vector(-55.1, 4.2, 0), App.Vector(0, 0, 1), 1.2), math.radians(0), math.radians(90)), False)
sketch7.addGeometry(Part.LineSegment(App.Vector(-53.9, 4.2, 0), App.Vector(-53.9, 3.2, 0)), False)
sketch7.addGeometry(Part.ArcOfCircle(Part.Circle(App.Vector(-55.1, 3.2, 0), App.Vector(0, 0, 1), 1.2), math.radians(-90), math.radians(0)), False)
sketch7.addGeometry(Part.LineSegment(App.Vector(-55.1, 2, 0), App.Vector(-61.9, 2, 0)), False)
sketch7.addGeometry(Part.ArcOfCircle(Part.Circle(App.Vector(-61.9, 3.3, 0), App.Vector(0, 0, 1), 1.3), math.radians(-180), math.radians(-90)), False)
sketch7.addGeometry(Part.LineSegment(App.Vector(-63.2, 3.2, 0), App.Vector(-63.2, 4.2, 0)), False)
sketch7.addGeometry(Part.ArcOfCircle(Part.Circle(App.Vector(-61.9, 4.2, 0), App.Vector(0, 0, 1), 1.3), math.radians(90), math.radians(180)), False)
sketch7.addConstraint(Sketcher.Constraint("Tangent", 0, 2, 1, 2))
sketch7.addConstraint(Sketcher.Constraint("Tangent", 1, 1, 2, 1))
sketch7.addConstraint(Sketcher.Constraint("Tangent", 2, 2, 3, 2))
sketch7.addConstraint(Sketcher.Constraint("Tangent", 3, 1, 4, 1))
sketch7.addConstraint(Sketcher.Constraint("Tangent", 4, 2, 5, 2))
sketch7.addConstraint(Sketcher.Constraint("Tangent", 5, 1, 6, 1))
sketch7.addConstraint(Sketcher.Constraint("Tangent", 6, 2, 7, 2))
sketch7.addConstraint(Sketcher.Constraint("Tangent", 7, 1, 0, 1))
sketch7.addConstraint(Sketcher.Constraint("Horizontal", 0))
sketch7.addConstraint(Sketcher.Constraint("Vertical", 2))
sketch7.addConstraint(Sketcher.Constraint("Horizontal", 4))
sketch7.addConstraint(Sketcher.Constraint("Vertical", 6))
sketch7.addConstraint(Sketcher.Constraint("Equal", 1, 3))
sketch7.addConstraint(Sketcher.Constraint("Equal", 3, 5))
sketch7.addConstraint(Sketcher.Constraint("Equal", 5, 7))
sketch7.addConstraint(Sketcher.Constraint("DistanceY", 2, 2, 2, 1, 1.0))
sketch7.addConstraint(Sketcher.Constraint("Radius", 1, 1.25))
sketch7.addConstraint(Sketcher.Constraint("DistanceX", 0, 1, 0, 2, 6.8))
sketch7.addConstraint(Sketcher.Constraint("DistanceY", -1, 1, 3, 1, 2.0))
sketch7.addConstraint(Sketcher.Constraint("DistanceX", 1, 3, -1, 1, 55.100019))
pocket4 = body.newObject("PartDesign::Pocket", "Pocket003")
pocket4.Profile = sketch7
pocket4.Length = 10
pocket4.Reversed = True

# Sketch on XY plane
sketch8 = body.newObject("Sketcher::SketchObject", "Sketch007")
sketch8.AttachmentSupport = (doc.getObject("XY_Plane"), [""])
sketch8.MapMode = "FlatFace"
sketch8.AttachmentOffset = App.Placement(App.Vector(0, 0, -109), App.Rotation())
sketch8.addGeometry(Part.LineSegment(App.Vector(-51.5, 4.7, 0), App.Vector(-51.5, -6.1, 0)), False)
sketch8.addGeometry(Part.LineSegment(App.Vector(-51.5, -6.1, 0), App.Vector(-65.5, -6.1, 0)), False)
sketch8.addGeometry(Part.LineSegment(App.Vector(-65.5, -6.1, 0), App.Vector(-65.5, 4.7, 0)), False)
sketch8.addGeometry(Part.ArcOfCircle(Part.Circle(App.Vector(-62.3, 4.7, 0), App.Vector(0, 0, 1), 3.2), math.radians(90), math.radians(180)), False)
sketch8.addGeometry(Part.LineSegment(App.Vector(-62.3, 7.9, 0), App.Vector(-54.7, 7.9, 0)), False)
sketch8.addGeometry(Part.ArcOfCircle(Part.Circle(App.Vector(-54.7, 4.7, 0), App.Vector(0, 0, 1), 3.2), math.radians(0), math.radians(90)), False)
sketch8.addConstraint(Sketcher.Constraint("Coincident", 0, 2, 1, 1))
sketch8.addConstraint(Sketcher.Constraint("Coincident", 1, 2, 2, 1))
sketch8.addConstraint(Sketcher.Constraint("Tangent", 2, 2, 3, 2))
sketch8.addConstraint(Sketcher.Constraint("Tangent", 3, 1, 4, 1))
sketch8.addConstraint(Sketcher.Constraint("Tangent", 4, 2, 5, 2))
sketch8.addConstraint(Sketcher.Constraint("Tangent", 5, 1, 0, 1))
sketch8.addConstraint(Sketcher.Constraint("Vertical", 0))
sketch8.addConstraint(Sketcher.Constraint("Horizontal", 1))
sketch8.addConstraint(Sketcher.Constraint("Vertical", 2))
sketch8.addConstraint(Sketcher.Constraint("Horizontal", 4))
sketch8.addConstraint(Sketcher.Constraint("Equal", 3, 5))
sketch8.addConstraint(Sketcher.Constraint("DistanceX", 1, 2, 1, 1, 14.0))
sketch8.addConstraint(Sketcher.Constraint("Radius", 3, 3.175))
sketch8.addConstraint(Sketcher.Constraint("DistanceY", 1, 2, 3, 1, 14.0))
sketch8.addConstraint(Sketcher.Constraint("DistanceY", -1, 1, 3, 3, 4.7))
sketch8.addConstraint(Sketcher.Constraint("DistanceX", 3, 3, -1, 1, 62.325019))
pocket5 = body.newObject("PartDesign::Pocket", "Pocket004")
pocket5.Profile = sketch8
pocket5.Length = 0.375
pocket5.Reversed = True
doc.recompute()

chamfer2 = body.newObject("PartDesign::Chamfer", "Chamfer001")
chamfer2.Base = (pocket5, edges_at(pocket5, [
    (-54.216, 2.366, -108.625),
    (-58.5, 5.5, -108.625),
    (-54.216, 5.134, -108.625),
    (-53.85, 3.75, -108.625),
    (-58.5, 2, -108.625),
    (-62.784, 2.366, -108.625),
    (-63.15, 3.75, -108.625),
    (-62.784, 5.134, -108.625),
]))
chamfer2.Size = 0.254

doc.recompute()
